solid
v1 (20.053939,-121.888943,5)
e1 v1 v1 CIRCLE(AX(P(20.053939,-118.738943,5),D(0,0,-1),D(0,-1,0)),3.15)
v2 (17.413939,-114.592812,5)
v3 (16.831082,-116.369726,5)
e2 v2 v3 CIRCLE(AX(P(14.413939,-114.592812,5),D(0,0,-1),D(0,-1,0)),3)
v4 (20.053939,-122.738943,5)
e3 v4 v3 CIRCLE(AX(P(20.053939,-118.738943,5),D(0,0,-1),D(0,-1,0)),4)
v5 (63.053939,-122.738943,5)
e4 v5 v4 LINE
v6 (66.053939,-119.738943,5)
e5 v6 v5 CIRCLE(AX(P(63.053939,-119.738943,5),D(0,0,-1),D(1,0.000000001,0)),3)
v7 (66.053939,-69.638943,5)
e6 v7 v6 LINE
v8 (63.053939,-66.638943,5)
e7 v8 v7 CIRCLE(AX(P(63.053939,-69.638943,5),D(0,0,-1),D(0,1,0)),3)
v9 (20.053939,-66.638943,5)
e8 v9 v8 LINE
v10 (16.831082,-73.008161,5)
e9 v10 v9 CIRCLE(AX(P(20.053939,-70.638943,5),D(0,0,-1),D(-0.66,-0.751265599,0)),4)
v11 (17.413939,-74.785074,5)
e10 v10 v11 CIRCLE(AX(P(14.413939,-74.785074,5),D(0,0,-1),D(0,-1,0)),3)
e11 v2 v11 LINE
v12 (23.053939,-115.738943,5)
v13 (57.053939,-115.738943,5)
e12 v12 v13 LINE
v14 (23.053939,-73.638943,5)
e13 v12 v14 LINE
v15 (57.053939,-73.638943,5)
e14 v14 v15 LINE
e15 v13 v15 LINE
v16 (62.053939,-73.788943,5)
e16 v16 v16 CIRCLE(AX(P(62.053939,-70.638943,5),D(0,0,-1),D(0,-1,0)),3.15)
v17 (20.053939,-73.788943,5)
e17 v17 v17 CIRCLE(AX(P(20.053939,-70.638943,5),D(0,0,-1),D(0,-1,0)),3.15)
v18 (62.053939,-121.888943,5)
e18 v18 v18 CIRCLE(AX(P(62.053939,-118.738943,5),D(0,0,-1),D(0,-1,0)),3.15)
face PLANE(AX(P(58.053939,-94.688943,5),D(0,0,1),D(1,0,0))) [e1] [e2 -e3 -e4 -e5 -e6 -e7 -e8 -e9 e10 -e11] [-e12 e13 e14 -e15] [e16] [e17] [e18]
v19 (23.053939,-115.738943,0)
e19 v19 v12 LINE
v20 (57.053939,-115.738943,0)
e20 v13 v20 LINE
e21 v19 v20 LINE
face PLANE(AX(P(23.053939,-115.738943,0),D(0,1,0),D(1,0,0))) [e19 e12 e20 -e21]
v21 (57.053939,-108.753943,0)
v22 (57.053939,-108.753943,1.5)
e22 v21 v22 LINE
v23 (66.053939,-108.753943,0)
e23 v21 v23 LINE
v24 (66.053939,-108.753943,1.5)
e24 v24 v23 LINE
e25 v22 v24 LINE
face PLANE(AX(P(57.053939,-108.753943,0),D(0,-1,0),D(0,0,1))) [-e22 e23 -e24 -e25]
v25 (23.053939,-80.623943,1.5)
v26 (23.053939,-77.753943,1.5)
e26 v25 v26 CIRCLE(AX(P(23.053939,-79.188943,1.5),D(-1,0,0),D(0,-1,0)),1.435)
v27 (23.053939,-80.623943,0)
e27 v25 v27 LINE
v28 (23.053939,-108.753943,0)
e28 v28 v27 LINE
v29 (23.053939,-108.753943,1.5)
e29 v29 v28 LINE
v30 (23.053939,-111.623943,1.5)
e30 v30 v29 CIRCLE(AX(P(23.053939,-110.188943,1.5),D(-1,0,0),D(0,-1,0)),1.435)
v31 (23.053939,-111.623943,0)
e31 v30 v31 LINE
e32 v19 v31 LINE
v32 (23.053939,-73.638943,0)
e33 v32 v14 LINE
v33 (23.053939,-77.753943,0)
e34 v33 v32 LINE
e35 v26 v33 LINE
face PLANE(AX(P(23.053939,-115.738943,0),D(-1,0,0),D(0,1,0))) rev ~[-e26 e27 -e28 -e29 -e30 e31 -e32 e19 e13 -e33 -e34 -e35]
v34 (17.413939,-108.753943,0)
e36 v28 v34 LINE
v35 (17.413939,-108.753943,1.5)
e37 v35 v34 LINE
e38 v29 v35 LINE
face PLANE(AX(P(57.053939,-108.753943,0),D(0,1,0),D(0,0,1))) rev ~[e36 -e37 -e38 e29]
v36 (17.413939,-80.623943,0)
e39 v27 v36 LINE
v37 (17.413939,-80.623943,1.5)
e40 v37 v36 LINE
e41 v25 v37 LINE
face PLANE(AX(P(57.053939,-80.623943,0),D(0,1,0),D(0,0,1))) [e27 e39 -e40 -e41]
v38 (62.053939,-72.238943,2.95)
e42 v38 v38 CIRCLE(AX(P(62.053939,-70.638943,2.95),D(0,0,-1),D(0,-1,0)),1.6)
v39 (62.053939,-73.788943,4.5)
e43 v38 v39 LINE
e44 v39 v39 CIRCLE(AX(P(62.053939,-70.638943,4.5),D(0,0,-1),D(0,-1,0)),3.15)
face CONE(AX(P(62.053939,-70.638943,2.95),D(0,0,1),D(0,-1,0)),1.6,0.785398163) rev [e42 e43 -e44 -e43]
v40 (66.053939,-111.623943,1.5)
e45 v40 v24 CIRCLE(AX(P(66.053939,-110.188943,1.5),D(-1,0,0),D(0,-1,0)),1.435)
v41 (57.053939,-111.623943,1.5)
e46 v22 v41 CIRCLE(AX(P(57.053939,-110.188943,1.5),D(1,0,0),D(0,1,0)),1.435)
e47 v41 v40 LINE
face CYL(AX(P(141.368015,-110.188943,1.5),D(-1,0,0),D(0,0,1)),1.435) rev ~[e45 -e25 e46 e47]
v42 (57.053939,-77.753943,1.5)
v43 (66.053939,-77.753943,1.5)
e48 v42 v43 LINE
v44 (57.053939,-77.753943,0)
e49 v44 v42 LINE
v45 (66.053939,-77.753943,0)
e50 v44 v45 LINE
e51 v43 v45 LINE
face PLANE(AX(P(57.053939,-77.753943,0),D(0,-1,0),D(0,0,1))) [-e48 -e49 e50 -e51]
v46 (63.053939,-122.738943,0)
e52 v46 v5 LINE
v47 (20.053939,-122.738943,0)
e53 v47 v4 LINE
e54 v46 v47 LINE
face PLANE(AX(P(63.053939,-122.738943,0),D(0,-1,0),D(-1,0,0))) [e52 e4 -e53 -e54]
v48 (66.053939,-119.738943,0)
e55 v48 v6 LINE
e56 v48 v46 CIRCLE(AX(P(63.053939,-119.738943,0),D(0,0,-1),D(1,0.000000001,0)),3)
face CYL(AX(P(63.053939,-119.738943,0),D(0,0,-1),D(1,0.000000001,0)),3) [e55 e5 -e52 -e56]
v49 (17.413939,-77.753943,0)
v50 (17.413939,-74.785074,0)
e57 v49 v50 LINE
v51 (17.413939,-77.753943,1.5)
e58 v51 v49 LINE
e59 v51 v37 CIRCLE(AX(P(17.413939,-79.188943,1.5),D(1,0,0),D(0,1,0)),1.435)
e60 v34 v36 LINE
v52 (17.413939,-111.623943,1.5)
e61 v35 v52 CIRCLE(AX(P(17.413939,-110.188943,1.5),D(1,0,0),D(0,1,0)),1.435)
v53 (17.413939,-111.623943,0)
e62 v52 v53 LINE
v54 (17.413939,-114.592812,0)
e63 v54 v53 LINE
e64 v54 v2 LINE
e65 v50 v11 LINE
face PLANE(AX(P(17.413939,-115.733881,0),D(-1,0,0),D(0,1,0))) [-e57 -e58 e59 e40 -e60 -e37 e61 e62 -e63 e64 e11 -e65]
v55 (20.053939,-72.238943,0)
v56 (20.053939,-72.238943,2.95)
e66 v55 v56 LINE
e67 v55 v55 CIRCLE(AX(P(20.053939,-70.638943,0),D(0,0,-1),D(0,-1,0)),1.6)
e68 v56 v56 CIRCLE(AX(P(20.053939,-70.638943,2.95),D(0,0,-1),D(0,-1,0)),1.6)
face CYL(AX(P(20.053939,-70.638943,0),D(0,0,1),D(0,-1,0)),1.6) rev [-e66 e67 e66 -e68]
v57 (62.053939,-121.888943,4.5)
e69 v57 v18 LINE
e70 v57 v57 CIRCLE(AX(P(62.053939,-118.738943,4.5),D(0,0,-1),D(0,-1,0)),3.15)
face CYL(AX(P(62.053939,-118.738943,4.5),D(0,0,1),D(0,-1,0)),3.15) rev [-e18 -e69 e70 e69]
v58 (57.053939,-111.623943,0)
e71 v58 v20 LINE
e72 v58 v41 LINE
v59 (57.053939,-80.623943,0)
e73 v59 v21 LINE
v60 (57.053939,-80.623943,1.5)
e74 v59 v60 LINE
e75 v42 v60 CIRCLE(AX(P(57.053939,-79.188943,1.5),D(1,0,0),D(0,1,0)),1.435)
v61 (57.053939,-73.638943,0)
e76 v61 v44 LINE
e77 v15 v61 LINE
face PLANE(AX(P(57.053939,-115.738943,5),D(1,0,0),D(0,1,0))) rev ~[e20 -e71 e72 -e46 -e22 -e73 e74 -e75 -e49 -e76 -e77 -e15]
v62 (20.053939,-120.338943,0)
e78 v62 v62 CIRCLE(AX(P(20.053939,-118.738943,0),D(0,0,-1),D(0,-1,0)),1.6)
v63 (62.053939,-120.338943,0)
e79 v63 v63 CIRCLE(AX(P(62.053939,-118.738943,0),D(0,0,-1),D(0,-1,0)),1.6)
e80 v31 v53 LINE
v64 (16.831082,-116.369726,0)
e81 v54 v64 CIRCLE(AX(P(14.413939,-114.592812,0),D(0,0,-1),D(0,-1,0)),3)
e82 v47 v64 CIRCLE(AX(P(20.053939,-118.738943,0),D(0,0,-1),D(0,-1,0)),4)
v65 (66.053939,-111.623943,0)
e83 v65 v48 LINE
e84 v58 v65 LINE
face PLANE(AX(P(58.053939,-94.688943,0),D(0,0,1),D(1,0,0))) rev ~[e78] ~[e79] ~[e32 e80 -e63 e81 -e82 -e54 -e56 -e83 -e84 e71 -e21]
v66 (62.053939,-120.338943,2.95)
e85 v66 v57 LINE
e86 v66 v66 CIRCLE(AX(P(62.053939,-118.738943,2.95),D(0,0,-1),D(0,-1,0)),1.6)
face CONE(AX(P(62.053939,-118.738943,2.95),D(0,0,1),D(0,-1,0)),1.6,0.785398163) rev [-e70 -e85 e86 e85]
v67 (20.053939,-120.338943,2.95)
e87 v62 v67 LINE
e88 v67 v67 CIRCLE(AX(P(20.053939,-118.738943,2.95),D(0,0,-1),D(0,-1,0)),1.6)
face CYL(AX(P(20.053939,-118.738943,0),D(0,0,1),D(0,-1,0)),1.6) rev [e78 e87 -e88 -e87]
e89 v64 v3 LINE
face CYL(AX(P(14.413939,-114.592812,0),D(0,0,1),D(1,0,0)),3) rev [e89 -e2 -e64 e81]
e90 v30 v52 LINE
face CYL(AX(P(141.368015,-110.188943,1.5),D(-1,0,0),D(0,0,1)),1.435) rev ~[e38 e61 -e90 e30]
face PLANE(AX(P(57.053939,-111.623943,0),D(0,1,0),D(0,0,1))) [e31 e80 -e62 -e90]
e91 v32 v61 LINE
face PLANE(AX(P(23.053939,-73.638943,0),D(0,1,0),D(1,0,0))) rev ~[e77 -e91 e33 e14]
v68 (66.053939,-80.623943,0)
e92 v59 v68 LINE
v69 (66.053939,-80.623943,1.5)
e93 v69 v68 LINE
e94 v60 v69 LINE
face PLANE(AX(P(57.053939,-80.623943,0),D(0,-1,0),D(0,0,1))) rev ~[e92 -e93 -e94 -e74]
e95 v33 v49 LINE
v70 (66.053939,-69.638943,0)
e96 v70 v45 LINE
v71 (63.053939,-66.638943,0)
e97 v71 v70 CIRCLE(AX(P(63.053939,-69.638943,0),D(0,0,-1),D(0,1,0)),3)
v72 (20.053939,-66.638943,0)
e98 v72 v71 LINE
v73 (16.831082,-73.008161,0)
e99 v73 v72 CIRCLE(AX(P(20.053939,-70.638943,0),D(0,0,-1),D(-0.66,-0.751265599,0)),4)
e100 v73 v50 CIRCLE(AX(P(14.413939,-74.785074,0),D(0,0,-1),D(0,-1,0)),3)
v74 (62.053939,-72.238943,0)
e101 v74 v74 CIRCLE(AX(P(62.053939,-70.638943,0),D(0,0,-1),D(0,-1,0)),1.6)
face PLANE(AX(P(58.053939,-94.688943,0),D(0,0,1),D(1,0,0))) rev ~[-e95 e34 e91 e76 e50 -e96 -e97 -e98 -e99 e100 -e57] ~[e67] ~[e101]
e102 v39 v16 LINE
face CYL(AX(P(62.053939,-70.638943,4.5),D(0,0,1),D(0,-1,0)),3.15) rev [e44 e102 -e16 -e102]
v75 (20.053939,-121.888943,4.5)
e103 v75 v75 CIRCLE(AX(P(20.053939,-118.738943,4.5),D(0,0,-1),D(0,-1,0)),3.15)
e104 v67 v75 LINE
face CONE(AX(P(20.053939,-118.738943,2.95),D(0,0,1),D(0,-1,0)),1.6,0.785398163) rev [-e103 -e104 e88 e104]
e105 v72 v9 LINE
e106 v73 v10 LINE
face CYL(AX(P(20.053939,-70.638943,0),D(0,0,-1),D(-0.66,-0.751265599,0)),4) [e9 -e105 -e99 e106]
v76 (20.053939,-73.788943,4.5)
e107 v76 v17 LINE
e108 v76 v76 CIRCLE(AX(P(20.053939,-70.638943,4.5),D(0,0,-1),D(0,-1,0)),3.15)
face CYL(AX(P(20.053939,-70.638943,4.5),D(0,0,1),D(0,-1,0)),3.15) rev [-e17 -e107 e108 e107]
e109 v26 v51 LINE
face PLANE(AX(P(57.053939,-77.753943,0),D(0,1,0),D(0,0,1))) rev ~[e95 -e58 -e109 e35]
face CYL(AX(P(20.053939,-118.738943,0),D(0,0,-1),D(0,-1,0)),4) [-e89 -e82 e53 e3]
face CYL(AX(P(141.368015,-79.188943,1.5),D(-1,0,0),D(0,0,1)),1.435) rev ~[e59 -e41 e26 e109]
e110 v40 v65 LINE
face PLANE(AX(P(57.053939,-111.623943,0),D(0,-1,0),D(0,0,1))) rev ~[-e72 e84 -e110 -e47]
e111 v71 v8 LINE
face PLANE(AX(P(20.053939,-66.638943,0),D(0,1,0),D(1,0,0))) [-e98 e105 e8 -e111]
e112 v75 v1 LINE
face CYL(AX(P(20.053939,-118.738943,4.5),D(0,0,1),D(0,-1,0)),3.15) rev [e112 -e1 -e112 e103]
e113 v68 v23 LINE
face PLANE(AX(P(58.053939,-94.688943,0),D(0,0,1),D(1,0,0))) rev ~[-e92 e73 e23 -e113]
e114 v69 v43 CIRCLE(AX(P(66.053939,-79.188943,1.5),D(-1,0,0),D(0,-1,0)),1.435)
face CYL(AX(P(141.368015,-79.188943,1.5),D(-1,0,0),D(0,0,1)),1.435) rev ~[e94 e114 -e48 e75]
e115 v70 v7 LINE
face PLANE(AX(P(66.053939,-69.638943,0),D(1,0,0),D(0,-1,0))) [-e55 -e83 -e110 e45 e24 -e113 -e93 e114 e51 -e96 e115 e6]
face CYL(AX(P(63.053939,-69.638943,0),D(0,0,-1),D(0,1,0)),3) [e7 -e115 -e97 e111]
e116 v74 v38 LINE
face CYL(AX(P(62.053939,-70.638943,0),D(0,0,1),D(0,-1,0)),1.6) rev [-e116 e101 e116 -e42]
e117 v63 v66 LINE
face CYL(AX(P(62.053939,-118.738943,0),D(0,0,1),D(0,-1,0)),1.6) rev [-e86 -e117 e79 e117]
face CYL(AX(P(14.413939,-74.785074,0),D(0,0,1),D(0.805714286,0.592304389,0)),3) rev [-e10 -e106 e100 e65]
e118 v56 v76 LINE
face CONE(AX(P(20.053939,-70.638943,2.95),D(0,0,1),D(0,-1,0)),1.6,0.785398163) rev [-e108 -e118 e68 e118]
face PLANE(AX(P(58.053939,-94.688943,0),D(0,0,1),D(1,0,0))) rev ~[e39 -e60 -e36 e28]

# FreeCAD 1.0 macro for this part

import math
import FreeCAD as App
import Part
import Sketcher
Q = App.Units.Quantity


def edges_at(feature, points):
    """Names of the edges that pass closest to the given points."""
    edges = feature.Shape.Edges
    near = lambda p: min(range(len(edges)), key=lambda i: edges[i].distToShape(Part.Vertex(*p))[0])
    return sorted({f"Edge{near(p) + 1}" for p in points})

doc = App.newDocument("Part")
body = doc.addObject("PartDesign::Body", "Body")

sketch1 = body.newObject("Sketcher::SketchObject", "Sketch")
sketch1.AttachmentSupport = (doc.getObject("XY_Plane"), [""])
sketch1.MapMode = "FlatFace"
sketch1.addGeometry([
    Part.LineSegment(App.Vector(63.1, -66.6, 0), App.Vector(20.1, -66.6, 0)),
    Part.ArcOfCircle(Part.Circle(App.Vector(20.1, -70.6, 0), App.Vector(0, 0, 1), 4), math.radians(90), math.radians(229)),
    Part.LineSegment(App.Vector(17.4, -73.6, 0), App.Vector(17.4, -115.7, 0)),
    Part.ArcOfCircle(Part.Circle(App.Vector(20.1, -118.7, 0), App.Vector(0, 0, 1), 4), math.radians(131), math.radians(270)),
    Part.LineSegment(App.Vector(20.1, -122.7, 0), App.Vector(63.1, -122.7, 0)),
    Part.ArcOfCircle(Part.Circle(App.Vector(63.1, -119.7, 0), App.Vector(0, 0, 1), 3), math.radians(-90), math.radians(0)),
    Part.LineSegment(App.Vector(66.1, -119.7, 0), App.Vector(66.1, -69.6, 0)),
    Part.ArcOfCircle(Part.Circle(App.Vector(63.1, -69.6, 0), App.Vector(0, 0, 1), 3), math.radians(0), math.radians(90)),
    Part.Circle(App.Vector(62.1, -118.7, 0), App.Vector(0, 0, 1), 1.2),
    Part.Circle(App.Vector(20.1, -118.7, 0), App.Vector(0, 0, 1), 1.2),
    Part.Circle(App.Vector(62.1, -70.6, 0), App.Vector(0, 0, 1), 1.2),
    Part.LineSegment(App.Vector(23.1, -115.7, 0), App.Vector(23.1, -73.6, 0)),
    Part.LineSegment(App.Vector(23.1, -73.6, 0), App.Vector(59.1, -73.6, 0)),
    Part.LineSegment(App.Vector(59.1, -73.6, 0), App.Vector(59.1, -115.7, 0)),
    Part.LineSegment(App.Vector(59.1, -115.7, 0), App.Vector(23.1, -115.7, 0)),
    Part.Circle(App.Vector(20.1, -70.6, 0), App.Vector(0, 0, 1), 1.2),
], False)
sketch1.addConstraint([
    Sketcher.Constraint("Tangent", 0, 2, 1, 1),
    Sketcher.Constraint("Coincident", 1, 2, 2, 1),
    Sketcher.Constraint("Coincident", 2, 2, 3, 1),
    Sketcher.Constraint("Tangent", 3, 2, 4, 1),
    Sketcher.Constraint("Tangent", 4, 2, 5, 1),
    Sketcher.Constraint("Tangent", 5, 2, 6, 1),
    Sketcher.Constraint("Tangent", 6, 2, 7, 1),
    Sketcher.Constraint("Tangent", 7, 2, 0, 1),
    Sketcher.Constraint("Coincident", 11, 2, 12, 1),
    Sketcher.Constraint("Coincident", 12, 2, 13, 1),
    Sketcher.Constraint("Coincident", 13, 2, 14, 1),
    Sketcher.Constraint("Coincident", 14, 2, 11, 1),
    Sketcher.Constraint("Horizontal", 0),
    Sketcher.Constraint("Vertical", 2),
    Sketcher.Constraint("Horizontal", 4),
    Sketcher.Constraint("Vertical", 6),
    Sketcher.Constraint("Vertical", 11),
    Sketcher.Constraint("Horizontal", 12),
    Sketcher.Constraint("Vertical", 13),
    Sketcher.Constraint("Horizontal", 14),
    Sketcher.Constraint("Coincident", 9, 3, 3, 3),
    Sketcher.Constraint("Coincident", 15, 3, 1, 3),
    Sketcher.Constraint("Equal", 1, 3),
    Sketcher.Constraint("Equal", 5, 7),
    Sketcher.Constraint("Equal", 8, 9),
    Sketcher.Constraint("Equal", 9, 10),
    Sketcher.Constraint("Equal", 10, 15),
    Sketcher.Constraint("Horizontal", 3, 3, 8, 3),
    Sketcher.Constraint("Horizontal", 1, 3, 10, 3),
    Sketcher.Constraint("Vertical", 1, 3, 3, 3),
    Sketcher.Constraint("Vertical", 8, 3, 10, 3),
    Sketcher.Constraint("Radius", 1, 4.0),
    Sketcher.Constraint("Radius", 5, 3.0),
    Sketcher.Constraint("Diameter", 8, 2.5),
    Sketcher.Constraint("DistanceX", 0, 2, 0, 1, 43.0),
    Sketcher.Constraint("DistanceX", 12, 1, 12, 2, 36.0),
    Sketcher.Constraint("DistanceY", 6, 1, 6, 2, 50.1),
    Sketcher.Constraint("DistanceY", 11, 1, 11, 2, 42.1),
    Sketcher.Constraint("DistanceX", 8, 3, 5, 3, 1.0),
    Sketcher.Constraint("DistanceX", 1, 3, 11, 2, 3.0),
    Sketcher.Constraint("DistanceY", 11, 2, 1, 3, 3.0),
    Sketcher.Constraint("DistanceX", 1, 2, 1, 3, 2.64),
    Sketcher.Constraint("DistanceX", -1, 1, 1, 3, 20.053939),
    Sketcher.Constraint("DistanceY", 2, 2, -1, 1, 115.733881),
])
pad1 = body.newObject("PartDesign::Pad", "Pad")
pad1.Profile = sketch1
pad1.Length = 5

sketch2 = body.newObject("Sketcher::SketchObject", "Sketch001")
sketch2.AttachmentSupport = (doc.getObject("XY_Plane"), [""])
sketch2.MapMode = "FlatFace"
sketch2.AttachmentOffset = App.Placement(App.Vector(0, 0, 5), App.Rotation())
sketch2.addGeometry([
    Part.LineSegment(App.Vector(57.1, -73.6, 0), App.Vector(57.1, -115.7, 0)),
    Part.LineSegment(App.Vector(57.1, -115.7, 0), App.Vector(59.1, -115.7, 0)),
    Part.LineSegment(App.Vector(59.1, -115.7, 0), App.Vector(59.1, -73.6, 0)),
    Part.LineSegment(App.Vector(59.1, -73.6, 0), App.Vector(57.1, -73.6, 0)),
], False)
sketch2.addConstraint([
    Sketcher.Constraint("Coincident", 0, 2, 1, 1),
    Sketcher.Constraint("Coincident", 1, 2, 2, 1),
    Sketcher.Constraint("Coincident", 2, 2, 3, 1),
    Sketcher.Constraint("Coincident", 3, 2, 0, 1),
    Sketcher.Constraint("Vertical", 0),
    Sketcher.Constraint("Horizontal", 1),
    Sketcher.Constraint("Vertical", 2),
    Sketcher.Constraint("Horizontal", 3),
    Sketcher.Constraint("DistanceX", 1, 1, 1, 2, 2.0),
    Sketcher.Constraint("DistanceY", 0, 2, 0, 1, 42.1),
    Sketcher.Constraint("DistanceX", -1, 1, 0, 2, 57.053939),
    Sketcher.Constraint("DistanceY", 0, 2, -1, 1, 115.738943),
])
pad2 = body.newObject("PartDesign::Pad", "Pad001")
pad2.Profile = sketch2
pad2.Length = 5
pad2.Reversed = True

sketch3 = body.newObject("Sketcher::SketchObject", "Sketch002")
sketch3.AttachmentSupport = (doc.getObject("YZ_Plane"), [""])
sketch3.MapMode = "FlatFace"
sketch3.AttachmentOffset = App.Placement(App.Vector(0, 0, 20.053939), App.Rotation())
sketch3.addGeometry([
    Part.LineSegment(App.Vector(-118.7, 0, 0), App.Vector(-118.7, 5, 0)),
    Part.LineSegment(App.Vector(-118.7, 5, 0), App.Vector(-121.9, 5, 0)),
    Part.LineSegment(App.Vector(-121.9, 5, 0), App.Vector(-121.9, 4.5, 0)),
    Part.LineSegment(App.Vector(-121.9, 4.5, 0), App.Vector(-120.3, 3, 0)),
    Part.LineSegment(App.Vector(-120.3, 3, 0), App.Vector(-120.3, 0, 0)),
    Part.LineSegment(App.Vector(-120.3, 0, 0), App.Vector(-118.7, 0, 0)),
], False)
sketch3.addGeometry(Part.LineSegment(App.Vector(-118.7, 5, 0), App.Vector(-118.7, 0, 0)), True)
sketch3.addConstraint([
    Sketcher.Constraint("Coincident", 0, 2, 1, 1),
    Sketcher.Constraint("Coincident", 1, 2, 2, 1),
    Sketcher.Constraint("Coincident", 2, 2, 3, 1),
    Sketcher.Constraint("Coincident", 3, 2, 4, 1),
    Sketcher.Constraint("Coincident", 4, 2, 5, 1),
    Sketcher.Constraint("Coincident", 5, 2, 0, 1),
    Sketcher.Constraint("Vertical", 0),
    Sketcher.Constraint("Horizontal", 1),
    Sketcher.Constraint("Vertical", 2),
    Sketcher.Constraint("Vertical", 4),
    Sketcher.Constraint("Horizontal", 5),
    Sketcher.Constraint("Vertical", 6),
    Sketcher.Constraint("Coincident", 6, 1, 0, 2),
    Sketcher.Constraint("PointOnObject", 4, 2, -1),
    Sketcher.Constraint("PointOnObject", 6, 2, -1),
    Sketcher.Constraint("DistanceY", 0, 1, 0, 2, 5.0),
    Sketcher.Constraint("Angle", 3, Q("-45 deg")),
    Sketcher.Constraint("DistanceX", 5, 1, 5, 2, 1.6),
    Sketcher.Constraint("DistanceY", 2, 2, 2, 1, 0.5),
    Sketcher.Constraint("DistanceX", 1, 2, 1, 1, 3.15),
    Sketcher.Constraint("DistanceX", 0, 2, -1, 1, 118.738943),
])
groove = body.newObject("PartDesign::Groove", "Groove")
groove.Profile = sketch3
groove.ReferenceAxis = (sketch3, ["Axis0"])
groove.Angle = 360
doc.recompute()

linearpattern = body.newObject("PartDesign::LinearPattern", "LinearPattern")
linearpattern.Originals = [groove]
linearpattern.Direction = (doc.getObject("Y_Axis"), [""])
linearpattern.Mode = "offset"
linearpattern.Offset = 48.1
linearpattern.Occurrences = 2
body.Tip = linearpattern
doc.recompute()

datumline = body.newObject("PartDesign::Line", "DatumLine")
datumline.Placement = App.Placement(App.Vector(0, 0, 0), App.Rotation(App.Vector(0, 0, 1), App.Vector(0.657728177, 0.753255365, 0)))
linearpattern2 = body.newObject("PartDesign::LinearPattern", "LinearPattern001")
linearpattern2.Originals = [groove]
linearpattern2.Direction = (datumline, [""])
linearpattern2.Mode = "offset"
linearpattern2.Offset = 63.856166
linearpattern2.Occurrences = 2
body.Tip = linearpattern2
doc.recompute()

linearpattern3 = body.newObject("PartDesign::LinearPattern", "LinearPattern002")
linearpattern3.Originals = [groove]
linearpattern3.Direction = (doc.getObject("X_Axis"), [""])
linearpattern3.Mode = "offset"
linearpattern3.Offset = 42
linearpattern3.Occurrences = 2
body.Tip = linearpattern3

sketch4 = body.newObject("Sketcher::SketchObject", "Sketch003")
sketch4.AttachmentSupport = (doc.getObject("YZ_Plane"), [""])
sketch4.MapMode = "FlatFace"
sketch4.AttachmentOffset = App.Placement(App.Vector(0, 0, 66.053939), App.Rotation())
sketch4.addGeometry([
    Part.Circle(App.Vector(-79.2, 1.5, 0), App.Vector(0, 0, 1), 1.4),
    Part.Circle(App.Vector(-110.2, 1.5, 0), App.Vector(0, 0, 1), 1.4),
], False)
sketch4.addConstraint([
    Sketcher.Constraint("Equal", 0, 1),
    Sketcher.Constraint("Horizontal", 0, 3, 1, 3),
    Sketcher.Constraint("Diameter", 0, 2.87),
    Sketcher.Constraint("DistanceX", 1, 3, 0, 3, 31.0),
    Sketcher.Constraint("DistanceY", -1, 1, 0, 3, 1.5),
    Sketcher.Constraint("DistanceX", 0, 3, -1, 1, 79.188943),
])
doc.recompute()
hole = body.newObject("PartDesign::Hole", "Hole")
hole.Profile = sketch4
hole.ThreadType = "None"
hole.Diameter = 2.87
hole.DepthType = "ThroughAll"
doc.recompute()

fillet = body.newObject("PartDesign::Fillet", "Fillet")
fillet.Base = (hole, edges_at(hole, [(17.414, -115.734, 2.5), (17.414, -73.644, 2.5)]))
fillet.Radius = 3

sketch5 = body.newObject("Sketcher::SketchObject", "Sketch004")
sketch5.AttachmentSupport = (doc.getObject("YZ_Plane"), [""])
sketch5.MapMode = "FlatFace"
sketch5.AttachmentOffset = App.Placement(App.Vector(0, 0, 57.053939), App.Rotation())
sketch5.addGeometry([
    Part.LineSegment(App.Vector(-77.8, 0, 0), App.Vector(-80.6, 0, 0)),
    Part.LineSegment(App.Vector(-80.6, 0, 0), App.Vector(-80.6, 1.5, 0)),
    Part.LineSegment(App.Vector(-80.6, 1.5, 0), App.Vector(-77.8, 1.5, 0)),
    Part.LineSegment(App.Vector(-77.8, 1.5, 0), App.Vector(-77.8, 0, 0)),
    Part.LineSegment(App.Vector(-108.8, 0, 0), App.Vector(-111.6, 0, 0)),
    Part.LineSegment(App.Vector(-111.6, 0, 0), App.Vector(-111.6, 1.5, 0)),
    Part.LineSegment(App.Vector(-111.6, 1.5, 0), App.Vector(-108.8, 1.5, 0)),
    Part.LineSegment(App.Vector(-108.8, 1.5, 0), App.Vector(-108.8, 0, 0)),
], False)
sketch5.addConstraint([
    Sketcher.Constraint("Coincident", 0, 2, 1, 1),
    Sketcher.Constraint("Coincident", 1, 2, 2, 1),
    Sketcher.Constraint("Coincident", 2, 2, 3, 1),
    Sketcher.Constraint("Coincident", 3, 2, 0, 1),
    Sketcher.Constraint("Coincident", 4, 2, 5, 1),
    Sketcher.Constraint("Coincident", 5, 2, 6, 1),
    Sketcher.Constraint("Coincident", 6, 2, 7, 1),
    Sketcher.Constraint("Coincident", 7, 2, 4, 1),
    Sketcher.Constraint("Horizontal", 0),
    Sketcher.Constraint("Vertical", 1),
    Sketcher.Constraint("Horizontal", 2),
    Sketcher.Constraint("Vertical", 3),
    Sketcher.Constraint("Horizontal", 4),
    Sketcher.Constraint("Vertical", 5),
    Sketcher.Constraint("Horizontal", 6),
    Sketcher.Constraint("Vertical", 7),
    Sketcher.Constraint("PointOnObject", 0, 2, -1),
    Sketcher.Constraint("PointOnObject", 4, 2, -1),
    Sketcher.Constraint("Horizontal", 2, 2, 5, 2),
    Sketcher.Constraint("Equal", 2, 4),
    Sketcher.Constraint("DistanceY", 1, 1, 1, 2, 1.5),
    Sketcher.Constraint("DistanceX", 4, 2, 0, 2, 31.0),
    Sketcher.Constraint("DistanceX", 0, 2, 0, 1, 2.87),
    Sketcher.Constraint("DistanceX", 0, 2, -1, 1, 80.623943),
])
pocket1 = body.newObject("PartDesign::Pocket", "Pocket")
pocket1.Profile = sketch5
pocket1.Type = "ThroughAll"
pocket1.Midplane = True

doc.recompute()
